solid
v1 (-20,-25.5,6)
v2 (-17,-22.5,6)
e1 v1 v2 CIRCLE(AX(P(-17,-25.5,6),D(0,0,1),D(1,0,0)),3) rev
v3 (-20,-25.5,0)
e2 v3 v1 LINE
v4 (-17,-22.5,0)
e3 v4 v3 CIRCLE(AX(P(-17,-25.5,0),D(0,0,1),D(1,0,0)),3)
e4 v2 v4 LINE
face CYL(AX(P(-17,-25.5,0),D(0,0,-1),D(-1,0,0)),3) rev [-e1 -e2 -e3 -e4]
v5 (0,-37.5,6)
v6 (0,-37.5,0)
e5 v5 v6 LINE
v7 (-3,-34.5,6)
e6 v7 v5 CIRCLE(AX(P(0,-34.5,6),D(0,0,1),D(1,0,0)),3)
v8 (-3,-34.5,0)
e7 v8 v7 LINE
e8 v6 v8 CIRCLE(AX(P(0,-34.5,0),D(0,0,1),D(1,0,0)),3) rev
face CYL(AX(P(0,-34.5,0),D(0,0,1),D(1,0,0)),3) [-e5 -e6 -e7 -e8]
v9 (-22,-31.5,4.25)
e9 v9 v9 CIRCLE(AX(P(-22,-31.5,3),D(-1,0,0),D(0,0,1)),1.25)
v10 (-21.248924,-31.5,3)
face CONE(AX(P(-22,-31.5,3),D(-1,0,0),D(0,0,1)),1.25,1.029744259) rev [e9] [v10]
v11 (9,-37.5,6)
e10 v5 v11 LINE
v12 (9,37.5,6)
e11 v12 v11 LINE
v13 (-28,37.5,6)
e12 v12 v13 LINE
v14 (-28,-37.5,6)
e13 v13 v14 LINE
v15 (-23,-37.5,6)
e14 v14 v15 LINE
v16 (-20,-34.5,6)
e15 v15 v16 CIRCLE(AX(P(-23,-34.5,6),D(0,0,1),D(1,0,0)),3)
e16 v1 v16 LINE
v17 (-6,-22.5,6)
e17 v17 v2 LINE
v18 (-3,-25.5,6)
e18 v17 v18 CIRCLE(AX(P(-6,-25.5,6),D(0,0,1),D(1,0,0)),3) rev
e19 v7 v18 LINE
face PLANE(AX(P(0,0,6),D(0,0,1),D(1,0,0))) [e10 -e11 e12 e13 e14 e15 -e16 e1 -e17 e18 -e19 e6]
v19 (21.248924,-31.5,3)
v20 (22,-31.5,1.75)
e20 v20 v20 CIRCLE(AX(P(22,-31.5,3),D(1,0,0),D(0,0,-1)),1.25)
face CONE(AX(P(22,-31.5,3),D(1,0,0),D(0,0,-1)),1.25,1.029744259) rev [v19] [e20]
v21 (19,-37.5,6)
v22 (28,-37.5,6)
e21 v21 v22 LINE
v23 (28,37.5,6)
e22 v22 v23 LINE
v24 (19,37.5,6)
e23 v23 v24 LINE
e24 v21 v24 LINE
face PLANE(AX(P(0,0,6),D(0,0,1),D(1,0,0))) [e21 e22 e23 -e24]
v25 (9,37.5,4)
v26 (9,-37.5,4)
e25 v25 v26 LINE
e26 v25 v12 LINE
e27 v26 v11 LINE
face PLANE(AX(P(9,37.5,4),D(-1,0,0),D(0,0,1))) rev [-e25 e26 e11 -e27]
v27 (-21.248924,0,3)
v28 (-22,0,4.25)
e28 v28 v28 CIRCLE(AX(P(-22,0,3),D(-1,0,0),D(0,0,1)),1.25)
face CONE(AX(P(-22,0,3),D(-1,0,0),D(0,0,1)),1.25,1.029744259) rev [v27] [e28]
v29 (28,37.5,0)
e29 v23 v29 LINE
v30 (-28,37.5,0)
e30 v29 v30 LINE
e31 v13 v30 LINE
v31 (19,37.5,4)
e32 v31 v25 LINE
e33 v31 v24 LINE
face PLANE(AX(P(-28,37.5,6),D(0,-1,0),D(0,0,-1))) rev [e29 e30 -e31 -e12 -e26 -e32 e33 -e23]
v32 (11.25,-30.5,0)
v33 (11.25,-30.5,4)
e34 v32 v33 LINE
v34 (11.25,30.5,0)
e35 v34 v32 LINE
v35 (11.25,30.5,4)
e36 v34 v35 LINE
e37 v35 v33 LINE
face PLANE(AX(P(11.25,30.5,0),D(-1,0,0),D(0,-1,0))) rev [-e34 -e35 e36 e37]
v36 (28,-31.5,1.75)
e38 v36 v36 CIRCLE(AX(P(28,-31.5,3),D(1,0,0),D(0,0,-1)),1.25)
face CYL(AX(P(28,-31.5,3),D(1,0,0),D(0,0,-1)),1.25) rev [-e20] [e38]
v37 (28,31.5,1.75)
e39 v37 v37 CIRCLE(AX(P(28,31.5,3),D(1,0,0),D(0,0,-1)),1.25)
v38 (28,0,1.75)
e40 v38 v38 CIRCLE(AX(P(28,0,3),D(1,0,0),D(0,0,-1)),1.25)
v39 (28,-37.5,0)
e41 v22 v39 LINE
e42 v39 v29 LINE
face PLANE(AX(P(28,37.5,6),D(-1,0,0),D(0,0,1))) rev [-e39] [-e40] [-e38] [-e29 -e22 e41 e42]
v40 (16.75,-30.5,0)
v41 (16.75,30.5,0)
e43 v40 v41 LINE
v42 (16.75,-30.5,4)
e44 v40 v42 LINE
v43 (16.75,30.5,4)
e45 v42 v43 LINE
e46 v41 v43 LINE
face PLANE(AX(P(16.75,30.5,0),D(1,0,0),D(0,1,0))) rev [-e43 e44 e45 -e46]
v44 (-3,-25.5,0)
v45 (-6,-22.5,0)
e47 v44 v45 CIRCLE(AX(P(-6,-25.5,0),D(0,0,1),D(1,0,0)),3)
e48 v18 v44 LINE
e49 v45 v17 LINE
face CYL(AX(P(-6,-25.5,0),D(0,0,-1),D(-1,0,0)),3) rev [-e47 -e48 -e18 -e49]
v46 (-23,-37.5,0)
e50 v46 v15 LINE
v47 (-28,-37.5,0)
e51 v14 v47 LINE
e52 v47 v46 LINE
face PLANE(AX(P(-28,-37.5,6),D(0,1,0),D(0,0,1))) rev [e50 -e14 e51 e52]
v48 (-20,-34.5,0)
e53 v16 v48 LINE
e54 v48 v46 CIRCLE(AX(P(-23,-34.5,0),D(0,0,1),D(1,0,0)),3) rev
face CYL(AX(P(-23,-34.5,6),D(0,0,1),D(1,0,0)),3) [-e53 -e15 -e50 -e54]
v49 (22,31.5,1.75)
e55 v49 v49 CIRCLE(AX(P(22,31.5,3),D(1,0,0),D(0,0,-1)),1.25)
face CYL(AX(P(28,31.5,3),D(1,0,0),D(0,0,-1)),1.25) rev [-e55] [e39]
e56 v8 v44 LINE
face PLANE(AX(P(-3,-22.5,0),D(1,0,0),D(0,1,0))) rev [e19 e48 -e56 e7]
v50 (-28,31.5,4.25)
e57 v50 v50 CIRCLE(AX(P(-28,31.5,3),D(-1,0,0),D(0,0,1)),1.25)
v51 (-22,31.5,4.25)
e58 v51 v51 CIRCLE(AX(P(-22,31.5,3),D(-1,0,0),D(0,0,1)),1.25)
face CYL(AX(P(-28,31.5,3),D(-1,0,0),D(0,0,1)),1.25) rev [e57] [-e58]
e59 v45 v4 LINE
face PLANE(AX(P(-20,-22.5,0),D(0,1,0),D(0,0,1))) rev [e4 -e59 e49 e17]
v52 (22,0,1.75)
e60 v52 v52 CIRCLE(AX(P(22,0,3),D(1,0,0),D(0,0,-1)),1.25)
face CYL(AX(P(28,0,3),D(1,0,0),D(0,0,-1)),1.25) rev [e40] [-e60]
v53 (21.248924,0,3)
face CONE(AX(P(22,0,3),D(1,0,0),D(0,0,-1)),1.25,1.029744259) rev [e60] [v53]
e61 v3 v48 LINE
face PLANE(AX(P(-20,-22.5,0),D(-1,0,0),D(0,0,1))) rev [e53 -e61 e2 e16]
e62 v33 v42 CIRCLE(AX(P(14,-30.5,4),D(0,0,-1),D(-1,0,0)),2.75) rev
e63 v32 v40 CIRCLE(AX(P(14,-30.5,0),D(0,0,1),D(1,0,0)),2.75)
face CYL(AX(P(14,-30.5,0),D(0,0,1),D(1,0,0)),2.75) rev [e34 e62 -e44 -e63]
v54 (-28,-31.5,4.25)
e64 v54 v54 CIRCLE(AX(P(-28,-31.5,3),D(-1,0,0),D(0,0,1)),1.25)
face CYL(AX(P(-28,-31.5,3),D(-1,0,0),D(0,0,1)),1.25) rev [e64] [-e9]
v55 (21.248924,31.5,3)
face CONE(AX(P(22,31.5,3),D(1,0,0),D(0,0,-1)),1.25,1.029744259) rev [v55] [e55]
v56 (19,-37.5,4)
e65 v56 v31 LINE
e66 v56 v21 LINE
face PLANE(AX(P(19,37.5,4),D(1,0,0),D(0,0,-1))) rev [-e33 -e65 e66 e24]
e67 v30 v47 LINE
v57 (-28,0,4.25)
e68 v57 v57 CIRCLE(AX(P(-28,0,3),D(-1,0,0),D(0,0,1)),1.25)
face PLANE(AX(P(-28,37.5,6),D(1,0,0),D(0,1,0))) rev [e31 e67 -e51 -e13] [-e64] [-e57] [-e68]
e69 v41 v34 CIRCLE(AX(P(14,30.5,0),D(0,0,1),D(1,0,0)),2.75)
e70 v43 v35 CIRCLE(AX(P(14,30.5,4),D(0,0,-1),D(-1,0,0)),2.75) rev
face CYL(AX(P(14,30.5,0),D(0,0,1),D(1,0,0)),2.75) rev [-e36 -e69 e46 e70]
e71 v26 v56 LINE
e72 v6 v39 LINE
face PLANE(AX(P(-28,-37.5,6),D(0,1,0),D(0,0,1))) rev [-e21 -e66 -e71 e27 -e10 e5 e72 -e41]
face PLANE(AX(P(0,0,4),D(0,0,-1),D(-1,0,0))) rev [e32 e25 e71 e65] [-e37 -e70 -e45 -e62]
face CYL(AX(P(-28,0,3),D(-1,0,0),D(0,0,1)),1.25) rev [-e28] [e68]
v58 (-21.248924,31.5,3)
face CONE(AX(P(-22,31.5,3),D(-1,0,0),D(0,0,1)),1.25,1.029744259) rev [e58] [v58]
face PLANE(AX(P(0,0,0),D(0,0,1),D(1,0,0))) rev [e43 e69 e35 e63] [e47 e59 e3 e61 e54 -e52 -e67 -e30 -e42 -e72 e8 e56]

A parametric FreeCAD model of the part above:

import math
import FreeCAD as App
import Part
import Sketcher
from FreeCAD import Vector
Q = App.Units.Quantity


def edges_at(feature, points):
    """Names of the edges that pass closest to the given points."""
    edges = feature.Shape.Edges
    near = lambda p: min(range(len(edges)), key=lambda i: edges[i].distToShape(Part.Vertex(*p))[0])
    return sorted({f"Edge{near(p) + 1}" for p in points})


def add_polygon(sketch, points):
    """Adds a closed chain of lines whose ends are joined by coincident constraints."""
    first, n = sketch.GeometryCount, len(points)
    for a, b in zip(points, points[1:] + points[:1]):
        sketch.addGeometry(Part.LineSegment(App.Vector(*a, 0), App.Vector(*b, 0)), False)
    for i in range(n):
        sketch.addConstraint(Sketcher.Constraint("Coincident", first + i, 2, first + (i + 1) % n, 1))

doc = App.newDocument("Part")
body = doc.addObject("PartDesign::Body", "Body")

sketch1 = doc.addObject("Sketcher::SketchObject", "Sketch")
body.addObject(sketch1)
sketch1.AttachmentSupport = (doc.XY_Plane, [""])
sketch1.MapMode = "FlatFace"
add_polygon(sketch1, [(-28, 38), (-28, -38), (28, -38), (28, 38)])
sketch1.addConstraint([
    Sketcher.Constraint("Vertical", 0),
    Sketcher.Constraint("Horizontal", 1),
    Sketcher.Constraint("Vertical", 2),
    Sketcher.Constraint("Horizontal", 3),
    Sketcher.Constraint("Symmetric", 0, 2, 2, 2, -1, 1),
    Sketcher.Constraint("DistanceX", 1, 1, 1, 2, Q("56 mm")),
    Sketcher.Constraint("DistanceY", 0, 2, 0, 1, Q("75 mm")),
])
pad1 = doc.addObject("PartDesign::Pad", "Pad")
body.addObject(pad1)
pad1.Profile = sketch1
pad1.Length = 6

sketch2 = doc.addObject("Sketcher::SketchObject", "Sketch001")
body.addObject(sketch2)
sketch2.AttachmentSupport = (doc.XY_Plane, [""])
sketch2.MapMode = "FlatFace"
sketch2.AttachmentOffset = App.Placement(Vector(0, 0, 6), App.Rotation())
sketch2.addGeometry([
    Part.LineSegment(Vector(16.8, -30.5, 0), Vector(16.8, 30.5, 0)),
    Part.ArcOfCircle(Part.Circle(Vector(14, 30.5, 0), Vector(0, 0, 1), 2.8), math.radians(0), math.radians(180)),
    Part.LineSegment(Vector(11.2, 30.5, 0), Vector(11.2, -30.5, 0)),
    Part.ArcOfCircle(Part.Circle(Vector(14, -30.5, 0), Vector(0, 0, 1), 2.8), math.radians(180), math.radians(360)),
], False)
sketch2.addConstraint([
    Sketcher.Constraint("Tangent", 0, 2, 1, 1),
    Sketcher.Constraint("Tangent", 1, 2, 2, 1),
    Sketcher.Constraint("Tangent", 2, 2, 3, 1),
    Sketcher.Constraint("Tangent", 3, 2, 0, 1),
    Sketcher.Constraint("Vertical", 0),
    Sketcher.Constraint("Vertical", 2),
    Sketcher.Constraint("DistanceY", 0, 1, 0, 2, Q("61 mm")),
    Sketcher.Constraint("Radius", 1, Q("2.75 mm")),
    Sketcher.Constraint("DistanceX", -1, 1, 1, 3, Q("14 mm")),
    Sketcher.Constraint("DistanceY", -1, 1, 1, 3, Q("30.5 mm")),
])
pocket1 = doc.addObject("PartDesign::Pocket", "Pocket")
body.addObject(pocket1)
pocket1.Profile = sketch2
pocket1.Type = "ThroughAll"

sketch3 = doc.addObject("Sketcher::SketchObject", "Sketch002")
body.addObject(sketch3)
sketch3.AttachmentSupport = (doc.XZ_Plane, [""])
sketch3.MapMode = "FlatFace"
sketch3.AttachmentOffset = App.Placement(Vector(0, 0, -31.5), App.Rotation())
add_polygon(sketch3, [(-21.2, 3), (-28, 3), (-28, 4.2), (-22, 4.2)])
sketch3.addGeometry(Part.LineSegment(Vector(-28, 3, 0), Vector(-21.2, 3, 0)), True)
sketch3.addConstraint([
    Sketcher.Constraint("Horizontal", 0),
    Sketcher.Constraint("Vertical", 1),
    Sketcher.Constraint("Horizontal", 2),
    Sketcher.Constraint("Horizontal", 4),
    Sketcher.Constraint("Coincident", 4, 1, 0, 2),
    Sketcher.Constraint("Equal", 0, 4),
    Sketcher.Constraint("DistanceX", 2, 1, 2, 2, Q("6 mm")),
    Sketcher.Constraint("Angle", 3, Q("-59 deg")),
    Sketcher.Constraint("DistanceX", 0, 2, -1, 1, Q("28 mm")),
    Sketcher.Constraint("DistanceY", -1, 1, 0, 2, Q("3 mm")),
    Sketcher.Constraint("DistanceY", 1, 1, 1, 2, Q("1.25 mm")),
])
groove = doc.addObject("PartDesign::Groove", "Groove")
body.addObject(groove)
groove.Profile = sketch3
groove.ReferenceAxis = (sketch3, ["Axis0"])
groove.Angle = 360
doc.recompute()

linearpattern = doc.addObject("PartDesign::LinearPattern", "LinearPattern")
body.addObject(linearpattern)
linearpattern.Originals = [groove]
linearpattern.Direction = (doc.Y_Axis, [""])
linearpattern.Mode = "offset"
linearpattern.Offset = 31.5
linearpattern.Occurrences = 2
linearpattern.Reversed = True
body.Tip = linearpattern
doc.recompute()

linearpattern2 = doc.addObject("PartDesign::LinearPattern", "LinearPattern001")
body.addObject(linearpattern2)
linearpattern2.Originals = [groove]
linearpattern2.Direction = (doc.Y_Axis, [""])
linearpattern2.Mode = "offset"
linearpattern2.Offset = 63
linearpattern2.Occurrences = 2
linearpattern2.Reversed = True
body.Tip = linearpattern2
doc.recompute()

mirrored = doc.addObject("PartDesign::Mirrored", "Mirrored")
body.addObject(mirrored)
mirrored.Originals = [groove]
mirrored.MirrorPlane = (doc.YZ_Plane, [""])
body.Tip = mirrored

sketch4 = doc.addObject("Sketcher::SketchObject", "Sketch003")
body.addObject(sketch4)
sketch4.AttachmentSupport = (doc.XZ_Plane, [""])
sketch4.MapMode = "FlatFace"
add_polygon(sketch4, [(28, 3), (21.2, 3), (22, 4.2), (28, 4.2)])
sketch4.addGeometry(Part.LineSegment(Vector(21.2, 3, 0), Vector(28, 3, 0)), True)
sketch4.addConstraint([
    Sketcher.Constraint("Horizontal", 0),
    Sketcher.Constraint("Horizontal", 2),
    Sketcher.Constraint("Vertical", 3),
    Sketcher.Constraint("Horizontal", 4),
    Sketcher.Constraint("Coincident", 4, 1, 0, 2),
    Sketcher.Constraint("Vertical", 2, 2, 4, 2),
    Sketcher.Constraint("DistanceX", 2, 1, 2, 2, Q("6 mm")),
    Sketcher.Constraint("Angle", 1, Q("59 deg")),
    Sketcher.Constraint("DistanceY", -1, 1, 0, 2, Q("3 mm")),
    Sketcher.Constraint("DistanceX", -1, 1, 1, 2, Q("22 mm")),
    Sketcher.Constraint("DistanceY", 3, 2, 3, 1, Q("1.25 mm")),
])
groove2 = doc.addObject("PartDesign::Groove", "Groove001")
body.addObject(groove2)
groove2.Profile = sketch4
groove2.ReferenceAxis = (sketch4, ["Axis0"])
groove2.Angle = 360

sketch5 = doc.addObject("Sketcher::SketchObject", "Sketch004")
body.addObject(sketch5)
sketch5.AttachmentSupport = (doc.XZ_Plane, [""])
sketch5.MapMode = "FlatFace"
sketch5.AttachmentOffset = App.Placement(Vector(0, 0, 31.5), App.Rotation())
add_polygon(sketch5, [(28, 3), (21.2, 3), (22, 4.2), (28, 4.2)])
sketch5.addGeometry(Part.LineSegment(Vector(21.2, 3, 0), Vector(28, 3, 0)), True)
sketch5.addConstraint([
    Sketcher.Constraint("Horizontal", 0),
    Sketcher.Constraint("Horizontal", 2),
    Sketcher.Constraint("Vertical", 3),
    Sketcher.Constraint("Horizontal", 4),
    Sketcher.Constraint("Coincident", 4, 1, 0, 2),
    Sketcher.Constraint("Vertical", 2, 2, 4, 2),
    Sketcher.Constraint("DistanceX", 2, 1, 2, 2, Q("6 mm")),
    Sketcher.Constraint("Angle", 1, Q("59 deg")),
    Sketcher.Constraint("DistanceY", -1, 1, 0, 2, Q("3 mm")),
    Sketcher.Constraint("DistanceX", -1, 1, 1, 2, Q("22 mm")),
    Sketcher.Constraint("DistanceY", 3, 2, 3, 1, Q("1.25 mm")),
])
groove3 = doc.addObject("PartDesign::Groove", "Groove002")
body.addObject(groove3)
groove3.Profile = sketch5
groove3.ReferenceAxis = (sketch5, ["Axis0"])
groove3.Angle = 360

sketch6 = doc.addObject("Sketcher::SketchObject", "Sketch005")
body.addObject(sketch6)
sketch6.AttachmentSupport = (doc.XY_Plane, [""])
sketch6.MapMode = "FlatFace"
sketch6.AttachmentOffset = App.Placement(Vector(0, 0, 6), App.Rotation())
add_polygon(sketch6, [(9, 38), (9, -38), (19, -38), (19, 38)])
sketch6.addConstraint([
    Sketcher.Constraint("Vertical", 0),
    Sketcher.Constraint("Horizontal", 1),
    Sketcher.Constraint("Vertical", 2),
    Sketcher.Constraint("Horizontal", 3),
    Sketcher.Constraint("DistanceX", 1, 1, 1, 2, Q("10 mm")),
    Sketcher.Constraint("DistanceY", 0, 2, 0, 1, Q("75 mm")),
    Sketcher.Constraint("DistanceX", -1, 1, 0, 2, Q("9 mm")),
    Sketcher.Constraint("DistanceY", 0, 2, -1, 1, Q("37.5 mm")),
])
pocket2 = doc.addObject("PartDesign::Pocket", "Pocket001")
body.addObject(pocket2)
pocket2.Profile = sketch6
pocket2.Length = 2

sketch7 = doc.addObject("Sketcher::SketchObject", "Sketch006")
body.addObject(sketch7)
sketch7.AttachmentSupport = (doc.XY_Plane, [""])
sketch7.MapMode = "FlatFace"
sketch7.AttachmentOffset = App.Placement(Vector(0, 0, 6), App.Rotation())
add_polygon(sketch7, [(-20, -22), (-20, -38), (-3, -38), (-3, -22)])
sketch7.addConstraint([
    Sketcher.Constraint("Vertical", 0),
    Sketcher.Constraint("Horizontal", 1),
    Sketcher.Constraint("Vertical", 2),
    Sketcher.Constraint("Horizontal", 3),
    Sketcher.Constraint("DistanceX", 1, 1, 1, 2, Q("17 mm")),
    Sketcher.Constraint("DistanceY", 0, 2, 0, 1, Q("15 mm")),
    Sketcher.Constraint("DistanceX", 0, 2, -1, 1, Q("20 mm")),
    Sketcher.Constraint("DistanceY", 0, 2, -1, 1, Q("37.5 mm")),
])
pocket3 = doc.addObject("PartDesign::Pocket", "Pocket002")
body.addObject(pocket3)
pocket3.Profile = sketch7
pocket3.Type = "ThroughAll"
doc.recompute()

fillet = doc.addObject("PartDesign::Fillet", "Fillet")
body.addObject(fillet)
fillet.Base = (pocket3, edges_at(pocket3, [
    (-3, -22.5, 3),
    (-3, -37.5, 3),
    (-20, -37.5, 3),
    (-20, -22.5, 3),
]))
fillet.Radius = 3

doc.recompute()
